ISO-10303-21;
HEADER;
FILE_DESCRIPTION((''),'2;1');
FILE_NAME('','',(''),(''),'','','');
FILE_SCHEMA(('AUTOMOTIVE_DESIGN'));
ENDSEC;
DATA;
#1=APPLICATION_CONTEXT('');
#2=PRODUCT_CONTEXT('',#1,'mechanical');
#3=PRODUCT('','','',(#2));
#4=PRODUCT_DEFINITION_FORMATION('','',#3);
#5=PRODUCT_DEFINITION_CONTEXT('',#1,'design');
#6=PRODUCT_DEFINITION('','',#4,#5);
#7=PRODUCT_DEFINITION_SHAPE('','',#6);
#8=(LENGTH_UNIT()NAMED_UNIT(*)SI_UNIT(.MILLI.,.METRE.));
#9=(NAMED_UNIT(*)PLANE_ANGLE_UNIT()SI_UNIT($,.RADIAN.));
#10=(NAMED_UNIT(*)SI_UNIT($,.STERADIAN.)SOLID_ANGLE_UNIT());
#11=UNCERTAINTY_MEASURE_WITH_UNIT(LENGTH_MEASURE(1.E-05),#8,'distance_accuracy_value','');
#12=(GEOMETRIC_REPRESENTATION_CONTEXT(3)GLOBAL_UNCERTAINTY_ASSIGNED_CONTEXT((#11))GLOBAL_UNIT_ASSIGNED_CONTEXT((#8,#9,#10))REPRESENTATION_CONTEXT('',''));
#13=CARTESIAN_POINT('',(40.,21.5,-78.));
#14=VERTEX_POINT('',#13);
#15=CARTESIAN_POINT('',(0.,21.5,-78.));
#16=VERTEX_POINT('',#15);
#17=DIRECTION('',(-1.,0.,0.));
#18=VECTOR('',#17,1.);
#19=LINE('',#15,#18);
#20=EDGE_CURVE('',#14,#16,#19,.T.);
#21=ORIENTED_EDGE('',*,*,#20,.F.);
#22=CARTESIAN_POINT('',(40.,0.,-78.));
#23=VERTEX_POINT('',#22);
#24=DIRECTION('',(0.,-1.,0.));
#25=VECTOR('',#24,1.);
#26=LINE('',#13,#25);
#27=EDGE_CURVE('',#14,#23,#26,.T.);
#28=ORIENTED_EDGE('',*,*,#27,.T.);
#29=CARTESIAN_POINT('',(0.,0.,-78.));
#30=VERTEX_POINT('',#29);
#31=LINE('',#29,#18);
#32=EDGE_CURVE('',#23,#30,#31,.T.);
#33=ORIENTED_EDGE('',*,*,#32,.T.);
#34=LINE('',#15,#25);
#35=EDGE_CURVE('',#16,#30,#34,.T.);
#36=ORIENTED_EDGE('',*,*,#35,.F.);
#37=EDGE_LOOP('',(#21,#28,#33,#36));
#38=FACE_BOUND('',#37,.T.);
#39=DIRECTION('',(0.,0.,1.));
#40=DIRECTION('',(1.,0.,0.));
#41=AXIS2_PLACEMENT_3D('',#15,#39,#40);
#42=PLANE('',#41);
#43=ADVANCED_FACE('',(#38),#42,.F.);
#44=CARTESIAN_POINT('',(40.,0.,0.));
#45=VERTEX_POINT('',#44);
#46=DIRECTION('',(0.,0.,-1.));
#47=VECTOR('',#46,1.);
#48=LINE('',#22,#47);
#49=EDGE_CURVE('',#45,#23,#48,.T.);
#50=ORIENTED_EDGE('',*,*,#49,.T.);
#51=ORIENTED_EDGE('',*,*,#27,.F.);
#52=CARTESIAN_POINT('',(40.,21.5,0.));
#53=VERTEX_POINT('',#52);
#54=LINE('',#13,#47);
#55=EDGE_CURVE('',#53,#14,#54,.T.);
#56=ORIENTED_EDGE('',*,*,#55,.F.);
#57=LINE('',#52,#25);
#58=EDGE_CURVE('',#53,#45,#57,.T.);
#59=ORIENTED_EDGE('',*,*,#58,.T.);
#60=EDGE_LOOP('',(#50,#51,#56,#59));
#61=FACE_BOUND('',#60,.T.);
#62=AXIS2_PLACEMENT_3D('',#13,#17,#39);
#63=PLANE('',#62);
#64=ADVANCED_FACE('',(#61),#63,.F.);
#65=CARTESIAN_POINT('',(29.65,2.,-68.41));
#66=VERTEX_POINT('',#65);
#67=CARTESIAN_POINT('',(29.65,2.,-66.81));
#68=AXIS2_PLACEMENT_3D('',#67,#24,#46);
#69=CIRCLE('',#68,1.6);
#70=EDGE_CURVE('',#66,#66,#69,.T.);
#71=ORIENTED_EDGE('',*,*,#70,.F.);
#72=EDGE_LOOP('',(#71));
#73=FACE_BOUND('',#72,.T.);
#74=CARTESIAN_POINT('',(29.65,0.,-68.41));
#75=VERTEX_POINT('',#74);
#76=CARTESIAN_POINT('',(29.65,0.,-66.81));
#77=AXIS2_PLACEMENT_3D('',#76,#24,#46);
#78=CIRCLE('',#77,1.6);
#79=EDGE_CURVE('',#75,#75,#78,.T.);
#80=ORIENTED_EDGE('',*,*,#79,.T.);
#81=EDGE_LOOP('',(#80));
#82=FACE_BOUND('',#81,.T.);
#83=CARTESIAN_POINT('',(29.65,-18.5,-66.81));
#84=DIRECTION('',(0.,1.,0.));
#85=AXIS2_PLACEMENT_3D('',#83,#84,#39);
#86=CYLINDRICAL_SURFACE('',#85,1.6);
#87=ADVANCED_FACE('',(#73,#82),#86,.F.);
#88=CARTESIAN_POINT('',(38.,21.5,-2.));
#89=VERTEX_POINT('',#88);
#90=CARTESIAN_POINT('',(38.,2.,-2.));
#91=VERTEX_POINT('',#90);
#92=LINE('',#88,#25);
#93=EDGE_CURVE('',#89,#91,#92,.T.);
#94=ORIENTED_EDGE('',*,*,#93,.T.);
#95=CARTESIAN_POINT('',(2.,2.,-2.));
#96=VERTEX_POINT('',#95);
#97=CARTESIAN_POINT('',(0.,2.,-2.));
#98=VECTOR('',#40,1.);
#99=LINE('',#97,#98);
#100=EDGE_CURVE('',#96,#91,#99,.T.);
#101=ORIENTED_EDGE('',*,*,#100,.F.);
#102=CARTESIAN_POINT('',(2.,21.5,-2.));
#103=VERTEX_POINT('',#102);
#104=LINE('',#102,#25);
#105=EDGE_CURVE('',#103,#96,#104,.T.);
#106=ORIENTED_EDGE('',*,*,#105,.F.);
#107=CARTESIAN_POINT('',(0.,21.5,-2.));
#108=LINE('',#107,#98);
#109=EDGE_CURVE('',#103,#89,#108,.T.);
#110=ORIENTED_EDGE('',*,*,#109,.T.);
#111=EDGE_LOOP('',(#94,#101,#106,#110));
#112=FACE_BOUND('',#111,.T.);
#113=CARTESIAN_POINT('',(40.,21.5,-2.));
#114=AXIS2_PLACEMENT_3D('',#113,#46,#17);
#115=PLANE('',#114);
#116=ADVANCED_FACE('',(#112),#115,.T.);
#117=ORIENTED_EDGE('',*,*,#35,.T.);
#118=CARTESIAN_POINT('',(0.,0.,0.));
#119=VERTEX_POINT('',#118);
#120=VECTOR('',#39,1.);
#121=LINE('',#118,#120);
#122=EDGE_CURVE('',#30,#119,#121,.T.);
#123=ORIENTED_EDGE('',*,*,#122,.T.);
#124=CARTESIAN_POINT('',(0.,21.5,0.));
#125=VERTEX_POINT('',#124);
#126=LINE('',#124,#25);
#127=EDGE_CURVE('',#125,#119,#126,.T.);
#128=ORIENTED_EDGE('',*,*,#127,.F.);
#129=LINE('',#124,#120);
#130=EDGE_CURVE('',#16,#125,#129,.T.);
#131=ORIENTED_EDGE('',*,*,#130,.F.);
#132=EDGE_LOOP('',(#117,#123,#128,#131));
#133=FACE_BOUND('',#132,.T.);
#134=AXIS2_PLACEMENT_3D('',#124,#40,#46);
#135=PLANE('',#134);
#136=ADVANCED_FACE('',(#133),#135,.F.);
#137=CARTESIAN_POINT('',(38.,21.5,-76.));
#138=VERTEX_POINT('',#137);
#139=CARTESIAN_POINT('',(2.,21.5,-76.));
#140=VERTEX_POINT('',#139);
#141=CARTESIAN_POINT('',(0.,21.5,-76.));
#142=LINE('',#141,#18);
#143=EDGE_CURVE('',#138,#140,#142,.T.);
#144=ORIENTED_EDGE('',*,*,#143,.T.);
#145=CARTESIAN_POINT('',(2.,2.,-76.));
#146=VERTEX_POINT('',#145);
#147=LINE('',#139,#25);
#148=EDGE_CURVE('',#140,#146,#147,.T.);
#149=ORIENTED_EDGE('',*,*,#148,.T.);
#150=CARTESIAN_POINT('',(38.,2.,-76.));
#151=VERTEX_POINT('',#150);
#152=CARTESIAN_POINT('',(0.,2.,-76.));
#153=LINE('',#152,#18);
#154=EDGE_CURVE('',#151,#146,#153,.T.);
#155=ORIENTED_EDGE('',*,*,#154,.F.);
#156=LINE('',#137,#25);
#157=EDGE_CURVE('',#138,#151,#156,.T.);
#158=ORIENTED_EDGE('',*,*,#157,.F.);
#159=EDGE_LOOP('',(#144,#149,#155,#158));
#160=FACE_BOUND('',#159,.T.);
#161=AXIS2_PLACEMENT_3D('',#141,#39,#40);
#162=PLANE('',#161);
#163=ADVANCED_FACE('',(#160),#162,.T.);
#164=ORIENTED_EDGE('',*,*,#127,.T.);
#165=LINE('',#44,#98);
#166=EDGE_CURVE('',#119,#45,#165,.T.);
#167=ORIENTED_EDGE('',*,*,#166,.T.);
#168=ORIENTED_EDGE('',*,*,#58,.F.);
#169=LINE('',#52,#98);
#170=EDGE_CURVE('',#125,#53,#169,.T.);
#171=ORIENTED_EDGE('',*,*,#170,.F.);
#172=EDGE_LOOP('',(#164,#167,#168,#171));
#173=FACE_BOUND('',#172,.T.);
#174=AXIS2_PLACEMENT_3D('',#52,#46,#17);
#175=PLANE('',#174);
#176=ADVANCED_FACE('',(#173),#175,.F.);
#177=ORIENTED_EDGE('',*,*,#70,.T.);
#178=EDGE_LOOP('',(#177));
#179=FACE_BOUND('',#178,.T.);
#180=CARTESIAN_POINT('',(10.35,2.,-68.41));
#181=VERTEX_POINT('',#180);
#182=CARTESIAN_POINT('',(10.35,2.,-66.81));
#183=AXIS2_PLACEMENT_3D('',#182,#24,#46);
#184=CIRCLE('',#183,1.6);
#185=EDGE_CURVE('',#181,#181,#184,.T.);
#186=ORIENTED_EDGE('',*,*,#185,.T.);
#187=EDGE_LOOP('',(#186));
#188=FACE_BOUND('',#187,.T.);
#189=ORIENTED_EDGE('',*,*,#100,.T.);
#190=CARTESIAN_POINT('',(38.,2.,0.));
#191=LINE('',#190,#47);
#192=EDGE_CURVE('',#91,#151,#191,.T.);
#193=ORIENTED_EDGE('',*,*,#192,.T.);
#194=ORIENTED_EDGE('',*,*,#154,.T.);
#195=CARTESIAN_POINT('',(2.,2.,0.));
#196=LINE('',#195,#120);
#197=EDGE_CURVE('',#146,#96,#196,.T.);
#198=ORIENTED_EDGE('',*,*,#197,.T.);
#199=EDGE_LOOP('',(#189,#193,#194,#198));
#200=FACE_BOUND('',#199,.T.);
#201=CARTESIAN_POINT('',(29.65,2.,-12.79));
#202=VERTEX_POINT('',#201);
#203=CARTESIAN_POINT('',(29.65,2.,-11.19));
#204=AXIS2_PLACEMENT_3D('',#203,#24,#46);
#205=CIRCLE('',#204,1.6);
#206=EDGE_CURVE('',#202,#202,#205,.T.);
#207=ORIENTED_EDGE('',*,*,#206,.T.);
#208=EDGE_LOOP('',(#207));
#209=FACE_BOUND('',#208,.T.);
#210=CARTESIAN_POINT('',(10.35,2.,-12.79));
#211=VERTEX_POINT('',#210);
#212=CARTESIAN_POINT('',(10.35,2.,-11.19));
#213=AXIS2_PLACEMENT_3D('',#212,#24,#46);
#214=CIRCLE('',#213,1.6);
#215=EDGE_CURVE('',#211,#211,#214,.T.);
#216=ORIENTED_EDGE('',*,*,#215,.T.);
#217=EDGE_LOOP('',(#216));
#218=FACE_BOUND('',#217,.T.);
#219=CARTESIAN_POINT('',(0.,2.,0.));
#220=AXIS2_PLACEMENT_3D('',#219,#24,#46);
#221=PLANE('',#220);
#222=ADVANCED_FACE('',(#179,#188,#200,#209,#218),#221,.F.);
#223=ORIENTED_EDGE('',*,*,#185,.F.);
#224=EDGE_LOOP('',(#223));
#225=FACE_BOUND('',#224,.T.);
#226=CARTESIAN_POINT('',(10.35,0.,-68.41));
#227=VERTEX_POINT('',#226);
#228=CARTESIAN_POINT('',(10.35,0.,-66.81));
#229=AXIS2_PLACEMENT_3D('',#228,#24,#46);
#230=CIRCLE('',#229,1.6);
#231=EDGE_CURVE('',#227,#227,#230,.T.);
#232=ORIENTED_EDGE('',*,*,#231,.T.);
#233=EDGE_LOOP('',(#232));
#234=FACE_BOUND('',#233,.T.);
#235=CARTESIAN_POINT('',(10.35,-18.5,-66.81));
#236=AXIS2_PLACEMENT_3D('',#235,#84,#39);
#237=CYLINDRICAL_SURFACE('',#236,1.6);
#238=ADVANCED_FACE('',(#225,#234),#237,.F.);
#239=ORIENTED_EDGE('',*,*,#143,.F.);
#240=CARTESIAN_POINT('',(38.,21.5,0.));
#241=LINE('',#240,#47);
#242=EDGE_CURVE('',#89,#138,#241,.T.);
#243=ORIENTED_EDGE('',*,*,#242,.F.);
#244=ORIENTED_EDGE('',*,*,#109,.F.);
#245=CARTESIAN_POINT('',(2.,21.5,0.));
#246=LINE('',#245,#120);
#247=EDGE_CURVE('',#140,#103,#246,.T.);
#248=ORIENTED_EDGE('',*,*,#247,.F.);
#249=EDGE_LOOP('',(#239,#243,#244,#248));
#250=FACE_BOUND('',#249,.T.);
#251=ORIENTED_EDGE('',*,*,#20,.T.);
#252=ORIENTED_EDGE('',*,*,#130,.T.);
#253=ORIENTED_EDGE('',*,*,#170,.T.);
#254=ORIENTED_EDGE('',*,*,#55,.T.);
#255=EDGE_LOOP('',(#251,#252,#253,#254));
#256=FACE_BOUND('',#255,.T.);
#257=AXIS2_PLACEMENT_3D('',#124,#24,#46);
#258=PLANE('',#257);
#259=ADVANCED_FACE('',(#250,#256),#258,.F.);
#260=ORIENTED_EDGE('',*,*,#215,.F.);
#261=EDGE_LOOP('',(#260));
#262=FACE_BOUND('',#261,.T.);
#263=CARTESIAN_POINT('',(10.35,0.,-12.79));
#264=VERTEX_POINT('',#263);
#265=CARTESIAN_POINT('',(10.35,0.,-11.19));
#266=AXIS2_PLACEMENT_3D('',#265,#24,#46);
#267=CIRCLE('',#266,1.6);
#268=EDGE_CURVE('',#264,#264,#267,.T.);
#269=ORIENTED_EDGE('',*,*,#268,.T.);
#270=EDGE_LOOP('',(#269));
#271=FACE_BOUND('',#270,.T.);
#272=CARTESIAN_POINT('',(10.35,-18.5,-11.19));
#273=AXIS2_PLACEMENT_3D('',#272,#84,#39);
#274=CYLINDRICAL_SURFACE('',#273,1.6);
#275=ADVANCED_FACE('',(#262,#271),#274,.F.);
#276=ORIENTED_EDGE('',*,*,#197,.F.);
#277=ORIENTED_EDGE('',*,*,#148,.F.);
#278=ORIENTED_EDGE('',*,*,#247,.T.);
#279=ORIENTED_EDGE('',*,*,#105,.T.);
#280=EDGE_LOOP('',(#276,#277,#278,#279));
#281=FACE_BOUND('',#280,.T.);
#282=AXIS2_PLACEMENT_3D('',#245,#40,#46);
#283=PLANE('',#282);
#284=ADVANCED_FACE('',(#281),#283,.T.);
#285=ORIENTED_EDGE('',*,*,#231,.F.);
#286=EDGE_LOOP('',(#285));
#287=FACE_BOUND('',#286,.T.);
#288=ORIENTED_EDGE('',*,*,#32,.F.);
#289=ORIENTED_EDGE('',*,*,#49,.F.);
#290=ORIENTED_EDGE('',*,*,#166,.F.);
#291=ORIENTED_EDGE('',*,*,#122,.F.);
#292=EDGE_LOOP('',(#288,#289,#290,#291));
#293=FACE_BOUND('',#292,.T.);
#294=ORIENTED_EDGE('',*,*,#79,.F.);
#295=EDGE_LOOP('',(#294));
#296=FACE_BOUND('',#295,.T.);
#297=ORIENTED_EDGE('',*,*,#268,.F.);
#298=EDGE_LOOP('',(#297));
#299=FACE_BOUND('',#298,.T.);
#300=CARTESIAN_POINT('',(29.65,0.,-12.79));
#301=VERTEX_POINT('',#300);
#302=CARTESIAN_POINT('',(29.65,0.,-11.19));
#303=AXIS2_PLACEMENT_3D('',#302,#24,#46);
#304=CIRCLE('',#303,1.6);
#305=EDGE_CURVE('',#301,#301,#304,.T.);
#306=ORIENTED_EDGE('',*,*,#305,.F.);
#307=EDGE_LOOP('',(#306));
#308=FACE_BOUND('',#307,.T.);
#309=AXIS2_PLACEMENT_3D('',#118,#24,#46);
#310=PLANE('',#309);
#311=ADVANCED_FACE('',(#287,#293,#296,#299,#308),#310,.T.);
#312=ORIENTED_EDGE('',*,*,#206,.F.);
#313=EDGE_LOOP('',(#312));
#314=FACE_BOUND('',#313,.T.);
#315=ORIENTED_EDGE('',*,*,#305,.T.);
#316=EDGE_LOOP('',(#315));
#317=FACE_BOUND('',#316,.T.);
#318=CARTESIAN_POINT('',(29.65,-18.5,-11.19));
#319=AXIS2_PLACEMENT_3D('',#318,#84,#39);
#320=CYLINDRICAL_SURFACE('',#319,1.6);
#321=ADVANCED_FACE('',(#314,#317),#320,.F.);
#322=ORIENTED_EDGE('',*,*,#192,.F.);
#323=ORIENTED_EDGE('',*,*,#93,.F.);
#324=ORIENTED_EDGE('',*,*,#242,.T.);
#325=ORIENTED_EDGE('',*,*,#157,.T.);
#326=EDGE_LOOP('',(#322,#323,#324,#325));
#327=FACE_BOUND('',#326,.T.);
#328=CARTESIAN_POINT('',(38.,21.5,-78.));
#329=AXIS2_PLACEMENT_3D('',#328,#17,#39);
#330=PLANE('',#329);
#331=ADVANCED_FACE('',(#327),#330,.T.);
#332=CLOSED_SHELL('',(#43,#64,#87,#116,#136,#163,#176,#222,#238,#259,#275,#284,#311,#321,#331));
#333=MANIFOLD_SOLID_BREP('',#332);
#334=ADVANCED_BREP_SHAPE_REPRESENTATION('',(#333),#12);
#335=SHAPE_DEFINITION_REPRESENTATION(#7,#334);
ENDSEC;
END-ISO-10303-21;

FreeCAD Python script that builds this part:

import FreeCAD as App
import Part
import Sketcher
from FreeCAD import Vector
Q = App.Units.Quantity


def faces_at(feature, points):
    """Names of the faces that lie closest to the given points."""
    faces = feature.Shape.Faces
    near = lambda p: min(range(len(faces)), key=lambda i: faces[i].distToShape(Part.Vertex(*p))[0])
    return sorted({f"Face{near(p) + 1}" for p in points})

doc = App.newDocument("Part")
body = doc.addObject("PartDesign::Body", "Body")

# Sketch on XZ plane
sketch1 = body.newObject("Sketcher::SketchObject", "Sketch")
sketch1.AttachmentSupport = (doc.getObject("XZ_Plane"), [""])
sketch1.MapMode = "FlatFace"
sketch1.addGeometry([
    Part.LineSegment(Vector(0, -78, 0), Vector(0, 0, 0)),
    Part.LineSegment(Vector(0, 0, 0), Vector(40, 0, 0)),
    Part.LineSegment(Vector(40, 0, 0), Vector(40, -78, 0)),
    Part.LineSegment(Vector(40, -78, 0), Vector(0, -78, 0)),
], False)
sketch1.addConstraint([
    Sketcher.Constraint("Coincident", 0, 2, 1, 1),
    Sketcher.Constraint("Coincident", 1, 2, 2, 1),
    Sketcher.Constraint("Coincident", 2, 2, 3, 1),
    Sketcher.Constraint("Coincident", 3, 2, 0, 1),
    Sketcher.Constraint("Vertical", 0),
    Sketcher.Constraint("Horizontal", 1),
    Sketcher.Constraint("Vertical", 2),
    Sketcher.Constraint("Horizontal", 3),
    Sketcher.Constraint("Coincident", 0, 2, -1, 1),
    Sketcher.Constraint("DistanceX", 1, 1, 1, 2, Q("40 mm")),
    Sketcher.Constraint("DistanceY", 0, 1, 0, 2, Q("78 mm")),
])
pad1 = body.newObject("PartDesign::Pad", "Pad")
pad1.Profile = sketch1
pad1.Length = 21.5
pad1.Reversed = True
doc.recompute()

thickness = body.newObject("PartDesign::Thickness", "Thickness")
thickness.Base = (pad1, faces_at(pad1, [(20, 21.5, -39)]))
thickness.Value = 2
thickness.Reversed = True
thickness.Join = "Intersection"

# Sketch on XZ plane
sketch2 = body.newObject("Sketcher::SketchObject", "Sketch001")
sketch2.AttachmentSupport = (doc.getObject("XZ_Plane"), [""])
sketch2.MapMode = "FlatFace"
sketch2.AttachmentOffset = App.Placement(Vector(0, 0, -21.5), App.Rotation())
sketch2.addGeometry([
    Part.Circle(Vector(10.3, -66.8, 0), Vector(0, 0, 1), 1.6),
    Part.Circle(Vector(29.6, -66.8, 0), Vector(0, 0, 1), 1.6),
    Part.Circle(Vector(29.6, -11.2, 0), Vector(0, 0, 1), 1.6),
    Part.Circle(Vector(10.3, -11.2, 0), Vector(0, 0, 1), 1.6),
], False)
sketch2.addConstraint([
    Sketcher.Constraint("Equal", 0, 1),
    Sketcher.Constraint("Equal", 1, 2),
    Sketcher.Constraint("Equal", 2, 3),
    Sketcher.Constraint("Horizontal", 0, 3, 1, 3),
    Sketcher.Constraint("Horizontal", 2, 3, 3, 3),
    Sketcher.Constraint("Vertical", 1, 3, 2, 3),
    Sketcher.Constraint("Vertical", 0, 3, 3, 3),
    Sketcher.Constraint("Diameter", 0, Q("3.2 mm")),
    Sketcher.Constraint("DistanceX", 0, 3, 1, 3, Q("19.3 mm")),
    Sketcher.Constraint("DistanceX", -1, 1, 0, 3, Q("10.35 mm")),
    Sketcher.Constraint("DistanceY", 0, 3, -1, 1, Q("66.81 mm")),
    Sketcher.Constraint("DistanceY", 2, 3, -1, 1, Q("11.19 mm")),
])
pocket1 = body.newObject("PartDesign::Pocket", "Pocket")
pocket1.Profile = sketch2
pocket1.Length = 40
pocket1.Reversed = True

doc.recompute()
